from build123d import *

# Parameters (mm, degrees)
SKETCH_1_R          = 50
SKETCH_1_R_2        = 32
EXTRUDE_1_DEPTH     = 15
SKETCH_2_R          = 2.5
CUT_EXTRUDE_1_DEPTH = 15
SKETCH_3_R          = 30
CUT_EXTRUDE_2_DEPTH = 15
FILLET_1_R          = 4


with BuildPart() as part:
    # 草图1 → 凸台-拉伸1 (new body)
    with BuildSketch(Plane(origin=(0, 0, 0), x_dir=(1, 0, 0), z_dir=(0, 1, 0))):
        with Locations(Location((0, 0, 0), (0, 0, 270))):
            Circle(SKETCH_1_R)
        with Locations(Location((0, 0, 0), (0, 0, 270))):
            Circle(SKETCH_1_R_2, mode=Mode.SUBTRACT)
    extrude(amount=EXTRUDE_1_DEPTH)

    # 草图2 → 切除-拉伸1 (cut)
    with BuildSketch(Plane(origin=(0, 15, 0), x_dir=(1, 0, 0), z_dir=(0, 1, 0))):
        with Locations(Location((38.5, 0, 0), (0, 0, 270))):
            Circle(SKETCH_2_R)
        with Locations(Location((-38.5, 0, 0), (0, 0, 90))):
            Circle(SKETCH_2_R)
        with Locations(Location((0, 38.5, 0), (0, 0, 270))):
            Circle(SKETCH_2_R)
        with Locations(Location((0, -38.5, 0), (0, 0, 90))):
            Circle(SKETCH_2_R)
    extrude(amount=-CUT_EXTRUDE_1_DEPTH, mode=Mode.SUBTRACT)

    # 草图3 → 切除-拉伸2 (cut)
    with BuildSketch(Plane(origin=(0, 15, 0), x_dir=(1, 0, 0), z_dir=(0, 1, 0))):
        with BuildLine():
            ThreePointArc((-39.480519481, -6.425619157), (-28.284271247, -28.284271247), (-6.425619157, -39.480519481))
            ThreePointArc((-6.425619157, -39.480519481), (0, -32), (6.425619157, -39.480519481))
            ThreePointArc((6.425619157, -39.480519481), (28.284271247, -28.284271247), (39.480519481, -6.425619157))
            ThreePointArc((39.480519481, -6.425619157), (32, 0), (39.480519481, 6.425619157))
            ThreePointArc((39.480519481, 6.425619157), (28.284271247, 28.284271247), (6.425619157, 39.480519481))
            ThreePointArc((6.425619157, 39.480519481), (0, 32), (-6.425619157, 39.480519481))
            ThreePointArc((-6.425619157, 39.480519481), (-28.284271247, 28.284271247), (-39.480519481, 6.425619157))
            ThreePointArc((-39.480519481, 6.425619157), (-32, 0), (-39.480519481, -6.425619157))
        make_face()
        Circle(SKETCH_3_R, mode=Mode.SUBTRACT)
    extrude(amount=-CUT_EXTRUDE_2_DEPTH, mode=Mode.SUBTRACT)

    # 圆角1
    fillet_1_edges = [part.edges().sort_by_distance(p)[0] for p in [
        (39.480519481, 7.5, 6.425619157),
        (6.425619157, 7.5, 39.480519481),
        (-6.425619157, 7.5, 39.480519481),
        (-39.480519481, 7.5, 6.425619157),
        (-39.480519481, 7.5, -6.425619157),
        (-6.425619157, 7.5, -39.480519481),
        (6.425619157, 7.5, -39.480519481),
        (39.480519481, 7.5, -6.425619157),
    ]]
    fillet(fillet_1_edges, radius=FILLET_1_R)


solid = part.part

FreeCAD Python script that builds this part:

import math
import FreeCAD as App
import Part
import Sketcher

V = App.Vector


def edges_at(feature, points):
    """Names of the edges that pass closest to the given points."""
    edges = feature.Shape.Edges
    near = lambda p: min(range(len(edges)), key=lambda i: edges[i].distToShape(Part.Vertex(*p))[0])
    return sorted({f"Edge{near(p) + 1}" for p in points})

doc = App.newDocument("Part")
body = doc.addObject("PartDesign::Body", "Body")

sketch1 = body.newObject("Sketcher::SketchObject", "Sketch")
sketch1.AttachmentSupport = (doc.getObject("XZ_Plane"), [""])
sketch1.MapMode = "FlatFace"
sketch1.addGeometry(Part.Circle(V(0, 0, 0), V(0, 0, 1), 50), False)
sketch1.addGeometry(Part.Circle(V(0, 0, 0), V(0, 0, 1), 32), False)
sketch1.addConstraint(Sketcher.Constraint("Coincident", 0, 3, -1, 1))
sketch1.addConstraint(Sketcher.Constraint("Coincident", 1, 3, -1, 1))
sketch1.addConstraint(Sketcher.Constraint("Diameter", 0, 100.0))
sketch1.addConstraint(Sketcher.Constraint("Diameter", 1, 64.0))
pad1 = body.newObject("PartDesign::Pad", "Pad")
pad1.Profile = sketch1
pad1.Length = 15
pad1.Reversed = True

sketch2 = body.newObject("Sketcher::SketchObject", "Sketch001")
sketch2.AttachmentSupport = (doc.getObject("XZ_Plane"), [""])
sketch2.MapMode = "FlatFace"
sketch2.AttachmentOffset = App.Placement(V(0, 0, -15), App.Rotation())
sketch2.addGeometry(Part.Circle(V(38.5, 0, 0), V(0, 0, 1), 2.5), False)
sketch2.addGeometry(Part.Circle(V(-38.5, 0, 0), V(0, 0, 1), 2.5), False)
sketch2.addGeometry(Part.Circle(V(0, -38.5, 0), V(0, 0, 1), 2.5), False)
sketch2.addGeometry(Part.Circle(V(0, 38.5, 0), V(0, 0, 1), 2.5), False)
sketch2.addConstraint(Sketcher.Constraint("Equal", 0, 1))
sketch2.addConstraint(Sketcher.Constraint("Equal", 1, 2))
sketch2.addConstraint(Sketcher.Constraint("Equal", 2, 3))
sketch2.addConstraint(Sketcher.Constraint("Symmetric", 0, 3, 1, 3, -1, 1))
sketch2.addConstraint(Sketcher.Constraint("Symmetric", 2, 3, 3, 3, -1, 1))
sketch2.addConstraint(Sketcher.Constraint("PointOnObject", 0, 3, -1))
sketch2.addConstraint(Sketcher.Constraint("PointOnObject", 2, 3, -2))
sketch2.addConstraint(Sketcher.Constraint("Diameter", 0, 5.0))
sketch2.addConstraint(Sketcher.Constraint("DistanceX", 1, 3, 0, 3, 77.0))
sketch2.addConstraint(Sketcher.Constraint("DistanceY", 2, 3, 3, 3, 77.0))
pocket1 = body.newObject("PartDesign::Pocket", "Pocket")
pocket1.Profile = sketch2
pocket1.Length = 15
pocket1.Reversed = True

sketch3 = body.newObject("Sketcher::SketchObject", "Sketch002")
sketch3.AttachmentSupport = (doc.getObject("XZ_Plane"), [""])
sketch3.MapMode = "FlatFace"
sketch3.AttachmentOffset = App.Placement(V(0, 0, -15), App.Rotation())
sketch3.addGeometry(Part.ArcOfCircle(Part.Circle(V(0, 0, 0), V(0, 0, 1), 40), math.radians(99), math.radians(171)), False)
sketch3.addGeometry(Part.ArcOfCircle(Part.Circle(V(0, 38, 0), V(0, 0, 1), 6), math.radians(171), math.radians(369)), False)
sketch3.addGeometry(Part.ArcOfCircle(Part.Circle(V(0, 0, 0), V(0, 0, 1), 40), math.radians(9), math.radians(81)), False)
sketch3.addGeometry(Part.ArcOfCircle(Part.Circle(V(38, 0, 0), V(0, 0, 1), 6), math.radians(81), math.radians(279)), False)
sketch3.addGeometry(Part.ArcOfCircle(Part.Circle(V(0, 0, 0), V(0, 0, 1), 40), math.radians(-81), math.radians(-9)), False)
sketch3.addGeometry(Part.ArcOfCircle(Part.Circle(V(0, -38, 0), V(0, 0, 1), 6), math.radians(-9), math.radians(189)), False)
sketch3.addGeometry(Part.ArcOfCircle(Part.Circle(V(0, 0, 0), V(0, 0, 1), 40), math.radians(-171), math.radians(-99)), False)
sketch3.addGeometry(Part.ArcOfCircle(Part.Circle(V(-38, 0, 0), V(0, 0, 1), 6), math.radians(-99), math.radians(99)), False)
sketch3.addGeometry(Part.Circle(V(0, 0, 0), V(0, 0, 1), 30), False)
sketch3.addConstraint(Sketcher.Constraint("Coincident", 0, 1, 1, 1))
sketch3.addConstraint(Sketcher.Constraint("Coincident", 1, 2, 2, 2))
sketch3.addConstraint(Sketcher.Constraint("Coincident", 2, 1, 3, 1))
sketch3.addConstraint(Sketcher.Constraint("Coincident", 3, 2, 4, 2))
sketch3.addConstraint(Sketcher.Constraint("Coincident", 4, 1, 5, 1))
sketch3.addConstraint(Sketcher.Constraint("Coincident", 5, 2, 6, 2))
sketch3.addConstraint(Sketcher.Constraint("Coincident", 6, 1, 7, 1))
sketch3.addConstraint(Sketcher.Constraint("Coincident", 7, 2, 0, 2))
sketch3.addConstraint(Sketcher.Constraint("Coincident", 0, 3, -1, 1))
sketch3.addConstraint(Sketcher.Constraint("Coincident", 2, 3, -1, 1))
sketch3.addConstraint(Sketcher.Constraint("Coincident", 4, 3, -1, 1))
sketch3.addConstraint(Sketcher.Constraint("Coincident", 6, 3, -1, 1))
sketch3.addConstraint(Sketcher.Constraint("Coincident", 8, 3, -1, 1))
sketch3.addConstraint(Sketcher.Constraint("Equal", 0, 2))
sketch3.addConstraint(Sketcher.Constraint("Equal", 1, 3))
sketch3.addConstraint(Sketcher.Constraint("Equal", 2, 4))
sketch3.addConstraint(Sketcher.Constraint("Equal", 3, 5))
sketch3.addConstraint(Sketcher.Constraint("Equal", 4, 6))
sketch3.addConstraint(Sketcher.Constraint("Equal", 5, 7))
sketch3.addConstraint(Sketcher.Constraint("Symmetric", 1, 3, 5, 3, -1, 1))
sketch3.addConstraint(Sketcher.Constraint("Symmetric", 3, 3, 7, 3, -1, 1))
sketch3.addConstraint(Sketcher.Constraint("PointOnObject", 1, 3, -2))
sketch3.addConstraint(Sketcher.Constraint("PointOnObject", 3, 3, -1))
sketch3.addConstraint(Sketcher.Constraint("Diameter", 8, 60.0))
sketch3.addConstraint(Sketcher.Constraint("Radius", 0, 40.0))
sketch3.addConstraint(Sketcher.Constraint("Radius", 1, 6.5))
sketch3.addConstraint(Sketcher.Constraint("DistanceY", 5, 3, 1, 3, 77.0))
sketch3.addConstraint(Sketcher.Constraint("DistanceX", -1, 1, 3, 3, 38.5))
pocket2 = body.newObject("PartDesign::Pocket", "Pocket001")
pocket2.Profile = sketch3
pocket2.Length = 15
pocket2.Reversed = True
doc.recompute()

fillet = body.newObject("PartDesign::Fillet", "Fillet")
fillet.Base = (pocket2, edges_at(pocket2, [
    (39.481, 7.5, 6.426),
    (6.426, 7.5, 39.481),
    (-6.426, 7.5, 39.481),
    (-39.481, 7.5, 6.426),
    (-39.481, 7.5, -6.426),
    (-6.426, 7.5, -39.481),
    (6.426, 7.5, -39.481),
    (39.481, 7.5, -6.426),
]))
fillet.Radius = 4

doc.recompute()
